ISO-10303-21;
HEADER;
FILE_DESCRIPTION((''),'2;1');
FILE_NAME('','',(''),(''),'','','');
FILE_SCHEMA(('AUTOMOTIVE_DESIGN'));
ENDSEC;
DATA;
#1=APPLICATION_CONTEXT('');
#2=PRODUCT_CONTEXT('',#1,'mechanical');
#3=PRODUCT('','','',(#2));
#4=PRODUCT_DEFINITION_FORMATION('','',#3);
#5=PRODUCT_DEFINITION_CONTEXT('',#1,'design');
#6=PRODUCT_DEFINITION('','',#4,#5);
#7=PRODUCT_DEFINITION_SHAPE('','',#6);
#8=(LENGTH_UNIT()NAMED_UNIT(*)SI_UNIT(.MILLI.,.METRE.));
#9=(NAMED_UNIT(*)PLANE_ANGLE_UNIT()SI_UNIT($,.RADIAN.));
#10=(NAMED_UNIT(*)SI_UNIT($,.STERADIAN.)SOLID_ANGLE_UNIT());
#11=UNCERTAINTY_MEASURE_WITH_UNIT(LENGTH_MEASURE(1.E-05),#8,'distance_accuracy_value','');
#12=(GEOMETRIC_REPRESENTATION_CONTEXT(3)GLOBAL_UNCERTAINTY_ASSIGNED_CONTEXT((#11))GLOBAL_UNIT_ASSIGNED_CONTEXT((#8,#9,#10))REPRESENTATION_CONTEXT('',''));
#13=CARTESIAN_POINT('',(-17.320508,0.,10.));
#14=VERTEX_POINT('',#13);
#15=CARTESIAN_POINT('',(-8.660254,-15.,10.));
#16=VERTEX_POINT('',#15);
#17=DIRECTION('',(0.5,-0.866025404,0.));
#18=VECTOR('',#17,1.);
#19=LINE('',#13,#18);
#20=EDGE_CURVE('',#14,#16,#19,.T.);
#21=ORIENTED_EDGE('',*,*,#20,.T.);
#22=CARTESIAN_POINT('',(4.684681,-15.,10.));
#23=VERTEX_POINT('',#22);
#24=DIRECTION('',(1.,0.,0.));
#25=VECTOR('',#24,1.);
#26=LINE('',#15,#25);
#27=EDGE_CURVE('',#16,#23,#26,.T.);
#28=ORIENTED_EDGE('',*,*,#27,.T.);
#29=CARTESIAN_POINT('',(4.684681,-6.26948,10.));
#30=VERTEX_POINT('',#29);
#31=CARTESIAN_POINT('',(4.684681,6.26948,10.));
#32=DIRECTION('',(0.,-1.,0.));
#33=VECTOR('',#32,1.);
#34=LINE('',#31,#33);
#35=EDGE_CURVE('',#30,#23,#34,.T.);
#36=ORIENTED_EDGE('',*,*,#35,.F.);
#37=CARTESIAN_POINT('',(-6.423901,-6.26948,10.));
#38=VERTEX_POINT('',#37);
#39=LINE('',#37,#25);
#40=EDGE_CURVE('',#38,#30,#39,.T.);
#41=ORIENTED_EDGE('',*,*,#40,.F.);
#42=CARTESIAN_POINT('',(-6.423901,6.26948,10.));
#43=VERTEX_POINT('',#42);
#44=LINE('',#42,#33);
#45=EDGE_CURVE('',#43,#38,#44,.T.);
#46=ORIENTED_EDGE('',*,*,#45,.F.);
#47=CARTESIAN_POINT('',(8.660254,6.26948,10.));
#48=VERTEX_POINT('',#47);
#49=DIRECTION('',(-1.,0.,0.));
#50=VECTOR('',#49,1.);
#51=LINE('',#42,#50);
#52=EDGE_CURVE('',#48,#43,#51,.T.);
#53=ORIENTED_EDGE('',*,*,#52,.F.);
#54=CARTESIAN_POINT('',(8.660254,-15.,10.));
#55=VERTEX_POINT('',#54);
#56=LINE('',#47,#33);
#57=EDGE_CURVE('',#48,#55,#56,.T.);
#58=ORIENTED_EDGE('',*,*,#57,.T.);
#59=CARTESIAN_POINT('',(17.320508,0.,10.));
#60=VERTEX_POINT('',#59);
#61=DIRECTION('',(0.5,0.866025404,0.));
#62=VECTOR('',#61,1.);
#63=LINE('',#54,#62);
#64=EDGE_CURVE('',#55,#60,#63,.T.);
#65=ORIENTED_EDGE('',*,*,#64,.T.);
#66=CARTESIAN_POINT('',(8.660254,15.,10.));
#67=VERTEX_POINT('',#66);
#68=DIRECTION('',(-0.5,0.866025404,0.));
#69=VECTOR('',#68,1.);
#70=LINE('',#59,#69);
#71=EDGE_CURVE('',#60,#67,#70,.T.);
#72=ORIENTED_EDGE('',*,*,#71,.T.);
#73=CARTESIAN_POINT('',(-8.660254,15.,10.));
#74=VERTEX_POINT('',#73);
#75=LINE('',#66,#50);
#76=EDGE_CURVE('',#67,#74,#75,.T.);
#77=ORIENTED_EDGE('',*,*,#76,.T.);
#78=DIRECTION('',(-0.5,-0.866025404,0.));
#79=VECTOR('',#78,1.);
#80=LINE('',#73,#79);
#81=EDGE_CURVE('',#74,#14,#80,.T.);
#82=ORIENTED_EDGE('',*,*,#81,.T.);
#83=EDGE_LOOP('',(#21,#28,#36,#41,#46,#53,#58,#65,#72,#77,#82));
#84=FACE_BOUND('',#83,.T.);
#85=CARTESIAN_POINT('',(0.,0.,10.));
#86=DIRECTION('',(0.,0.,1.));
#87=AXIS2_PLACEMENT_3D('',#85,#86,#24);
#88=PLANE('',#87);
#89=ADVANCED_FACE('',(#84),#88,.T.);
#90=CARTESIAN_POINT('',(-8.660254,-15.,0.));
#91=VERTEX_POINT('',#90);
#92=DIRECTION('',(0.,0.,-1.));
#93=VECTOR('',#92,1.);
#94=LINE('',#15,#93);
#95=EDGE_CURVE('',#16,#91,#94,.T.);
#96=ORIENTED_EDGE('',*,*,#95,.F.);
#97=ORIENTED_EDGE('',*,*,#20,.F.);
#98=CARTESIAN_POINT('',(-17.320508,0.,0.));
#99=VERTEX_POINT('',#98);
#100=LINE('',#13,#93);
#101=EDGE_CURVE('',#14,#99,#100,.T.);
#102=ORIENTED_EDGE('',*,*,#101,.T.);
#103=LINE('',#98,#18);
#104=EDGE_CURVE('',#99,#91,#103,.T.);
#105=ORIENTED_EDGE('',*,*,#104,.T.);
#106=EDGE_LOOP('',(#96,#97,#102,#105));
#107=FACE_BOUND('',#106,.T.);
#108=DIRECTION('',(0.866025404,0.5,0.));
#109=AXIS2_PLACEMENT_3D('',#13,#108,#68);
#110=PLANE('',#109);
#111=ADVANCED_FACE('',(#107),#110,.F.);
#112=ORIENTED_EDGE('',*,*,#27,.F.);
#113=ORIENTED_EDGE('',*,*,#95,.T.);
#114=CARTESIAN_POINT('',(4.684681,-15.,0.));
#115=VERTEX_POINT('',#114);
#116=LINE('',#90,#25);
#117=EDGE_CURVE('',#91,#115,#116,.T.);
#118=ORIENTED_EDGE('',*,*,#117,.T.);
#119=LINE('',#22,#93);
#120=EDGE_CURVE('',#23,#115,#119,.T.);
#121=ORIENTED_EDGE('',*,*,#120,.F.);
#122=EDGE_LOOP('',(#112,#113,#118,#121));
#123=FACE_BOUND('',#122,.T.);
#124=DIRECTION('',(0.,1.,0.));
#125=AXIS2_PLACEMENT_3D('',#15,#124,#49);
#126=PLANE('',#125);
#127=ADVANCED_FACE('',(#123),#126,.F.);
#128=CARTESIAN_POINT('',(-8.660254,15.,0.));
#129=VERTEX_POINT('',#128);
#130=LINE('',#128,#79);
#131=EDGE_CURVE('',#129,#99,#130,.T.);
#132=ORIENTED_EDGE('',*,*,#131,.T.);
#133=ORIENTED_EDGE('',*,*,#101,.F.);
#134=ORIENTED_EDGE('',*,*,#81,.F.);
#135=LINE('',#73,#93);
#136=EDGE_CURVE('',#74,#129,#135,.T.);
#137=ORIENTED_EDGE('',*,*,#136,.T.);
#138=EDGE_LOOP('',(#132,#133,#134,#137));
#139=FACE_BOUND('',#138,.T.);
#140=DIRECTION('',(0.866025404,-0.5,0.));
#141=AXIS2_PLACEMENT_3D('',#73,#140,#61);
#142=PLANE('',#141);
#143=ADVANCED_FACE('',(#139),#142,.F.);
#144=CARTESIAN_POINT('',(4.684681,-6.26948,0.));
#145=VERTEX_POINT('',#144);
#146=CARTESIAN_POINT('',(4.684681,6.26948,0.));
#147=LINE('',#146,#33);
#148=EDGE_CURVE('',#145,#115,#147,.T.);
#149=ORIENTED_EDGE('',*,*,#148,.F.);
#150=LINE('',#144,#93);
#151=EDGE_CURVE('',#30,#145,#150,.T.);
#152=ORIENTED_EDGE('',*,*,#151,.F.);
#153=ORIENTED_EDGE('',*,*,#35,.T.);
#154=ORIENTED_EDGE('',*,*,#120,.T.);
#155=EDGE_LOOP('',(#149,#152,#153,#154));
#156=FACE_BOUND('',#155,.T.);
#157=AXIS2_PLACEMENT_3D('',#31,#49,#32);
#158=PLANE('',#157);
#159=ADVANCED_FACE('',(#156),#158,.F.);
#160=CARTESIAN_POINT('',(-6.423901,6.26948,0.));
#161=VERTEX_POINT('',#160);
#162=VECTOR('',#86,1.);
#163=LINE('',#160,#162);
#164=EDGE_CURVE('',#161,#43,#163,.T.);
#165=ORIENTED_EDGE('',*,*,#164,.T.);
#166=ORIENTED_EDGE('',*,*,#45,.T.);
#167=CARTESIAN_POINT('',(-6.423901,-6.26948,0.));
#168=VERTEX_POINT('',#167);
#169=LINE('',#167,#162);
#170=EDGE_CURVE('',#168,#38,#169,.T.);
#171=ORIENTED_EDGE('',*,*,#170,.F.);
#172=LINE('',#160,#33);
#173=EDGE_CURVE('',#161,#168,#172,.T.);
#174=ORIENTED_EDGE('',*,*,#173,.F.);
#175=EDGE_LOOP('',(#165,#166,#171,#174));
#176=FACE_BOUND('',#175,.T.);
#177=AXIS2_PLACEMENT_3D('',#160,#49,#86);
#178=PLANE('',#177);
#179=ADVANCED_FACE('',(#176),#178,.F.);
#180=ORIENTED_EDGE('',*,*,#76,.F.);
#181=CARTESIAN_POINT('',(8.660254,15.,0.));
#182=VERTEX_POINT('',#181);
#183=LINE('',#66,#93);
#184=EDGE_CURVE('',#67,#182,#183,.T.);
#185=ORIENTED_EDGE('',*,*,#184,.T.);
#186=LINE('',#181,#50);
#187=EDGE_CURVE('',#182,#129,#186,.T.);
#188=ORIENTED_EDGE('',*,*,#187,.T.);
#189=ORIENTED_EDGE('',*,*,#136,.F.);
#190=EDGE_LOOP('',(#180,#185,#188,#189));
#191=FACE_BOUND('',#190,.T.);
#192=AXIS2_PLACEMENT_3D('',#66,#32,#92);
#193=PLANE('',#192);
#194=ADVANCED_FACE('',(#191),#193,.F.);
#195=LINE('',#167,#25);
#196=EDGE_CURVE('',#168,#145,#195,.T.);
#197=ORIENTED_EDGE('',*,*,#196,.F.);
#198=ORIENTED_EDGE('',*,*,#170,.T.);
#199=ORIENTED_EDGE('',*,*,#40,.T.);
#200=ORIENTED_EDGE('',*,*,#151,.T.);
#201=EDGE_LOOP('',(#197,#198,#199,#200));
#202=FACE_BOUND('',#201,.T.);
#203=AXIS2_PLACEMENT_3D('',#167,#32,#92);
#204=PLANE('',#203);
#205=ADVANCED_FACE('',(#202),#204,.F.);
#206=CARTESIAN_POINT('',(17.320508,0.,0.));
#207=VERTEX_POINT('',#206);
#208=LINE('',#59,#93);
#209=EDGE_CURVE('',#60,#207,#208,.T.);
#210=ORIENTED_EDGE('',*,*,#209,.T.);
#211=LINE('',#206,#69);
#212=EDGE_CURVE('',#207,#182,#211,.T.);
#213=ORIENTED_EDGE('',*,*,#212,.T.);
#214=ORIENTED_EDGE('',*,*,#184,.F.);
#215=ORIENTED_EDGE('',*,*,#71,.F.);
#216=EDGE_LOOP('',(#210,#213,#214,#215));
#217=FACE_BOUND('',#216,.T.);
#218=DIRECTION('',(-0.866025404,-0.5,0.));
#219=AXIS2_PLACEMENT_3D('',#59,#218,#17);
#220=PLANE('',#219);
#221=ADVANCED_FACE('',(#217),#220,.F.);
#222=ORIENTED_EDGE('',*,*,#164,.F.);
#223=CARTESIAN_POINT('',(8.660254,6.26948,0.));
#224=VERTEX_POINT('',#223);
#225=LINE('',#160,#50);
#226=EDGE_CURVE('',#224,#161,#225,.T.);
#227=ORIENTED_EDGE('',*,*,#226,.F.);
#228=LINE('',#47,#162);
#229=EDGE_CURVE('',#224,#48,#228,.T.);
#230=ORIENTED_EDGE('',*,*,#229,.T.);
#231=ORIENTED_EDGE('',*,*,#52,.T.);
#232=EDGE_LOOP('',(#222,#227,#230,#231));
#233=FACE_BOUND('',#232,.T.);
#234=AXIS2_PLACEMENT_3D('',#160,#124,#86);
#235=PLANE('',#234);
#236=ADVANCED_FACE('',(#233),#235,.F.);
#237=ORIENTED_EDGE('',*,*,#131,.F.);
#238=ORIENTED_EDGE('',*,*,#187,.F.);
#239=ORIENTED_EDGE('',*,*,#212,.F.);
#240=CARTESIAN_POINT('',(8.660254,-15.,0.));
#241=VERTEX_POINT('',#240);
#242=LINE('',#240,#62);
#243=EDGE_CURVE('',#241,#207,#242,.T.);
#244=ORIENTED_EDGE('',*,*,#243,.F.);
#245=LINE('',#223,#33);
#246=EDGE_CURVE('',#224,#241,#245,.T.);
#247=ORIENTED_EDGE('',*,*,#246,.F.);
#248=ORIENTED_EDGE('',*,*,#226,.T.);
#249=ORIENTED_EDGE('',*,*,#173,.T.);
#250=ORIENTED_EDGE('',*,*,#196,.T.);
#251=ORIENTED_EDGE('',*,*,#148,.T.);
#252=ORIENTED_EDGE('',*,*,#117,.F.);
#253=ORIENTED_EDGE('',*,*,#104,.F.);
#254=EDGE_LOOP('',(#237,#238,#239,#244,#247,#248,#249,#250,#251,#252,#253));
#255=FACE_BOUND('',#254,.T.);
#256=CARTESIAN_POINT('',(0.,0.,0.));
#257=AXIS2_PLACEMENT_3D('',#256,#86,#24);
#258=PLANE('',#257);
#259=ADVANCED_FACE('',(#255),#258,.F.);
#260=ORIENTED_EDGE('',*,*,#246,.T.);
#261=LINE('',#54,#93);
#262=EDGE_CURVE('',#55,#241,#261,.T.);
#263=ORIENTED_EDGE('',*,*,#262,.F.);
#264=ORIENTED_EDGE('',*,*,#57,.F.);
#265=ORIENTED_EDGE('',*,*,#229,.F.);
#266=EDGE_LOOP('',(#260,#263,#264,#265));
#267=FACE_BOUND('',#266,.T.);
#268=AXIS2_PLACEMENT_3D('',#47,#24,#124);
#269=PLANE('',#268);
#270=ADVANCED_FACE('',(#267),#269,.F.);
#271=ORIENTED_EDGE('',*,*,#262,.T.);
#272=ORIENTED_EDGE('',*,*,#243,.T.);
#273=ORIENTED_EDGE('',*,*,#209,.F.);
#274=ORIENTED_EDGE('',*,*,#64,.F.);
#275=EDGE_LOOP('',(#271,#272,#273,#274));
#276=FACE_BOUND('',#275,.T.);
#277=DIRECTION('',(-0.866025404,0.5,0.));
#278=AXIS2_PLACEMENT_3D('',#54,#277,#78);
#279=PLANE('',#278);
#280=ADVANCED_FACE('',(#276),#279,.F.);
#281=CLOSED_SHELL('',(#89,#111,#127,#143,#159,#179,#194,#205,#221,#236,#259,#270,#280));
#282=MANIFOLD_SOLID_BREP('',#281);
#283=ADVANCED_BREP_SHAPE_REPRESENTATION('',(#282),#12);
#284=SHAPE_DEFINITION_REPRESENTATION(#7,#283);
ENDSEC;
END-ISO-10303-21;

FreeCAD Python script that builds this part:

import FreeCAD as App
import Part
import Sketcher
Q = App.Units.Quantity

doc = App.newDocument("Part")
body = doc.addObject("PartDesign::Body", "Body")

# Sketch on XY plane
sketch1 = body.newObject("Sketcher::SketchObject", "Sketch")
sketch1.AttachmentSupport = (doc.getObject("XY_Plane"), [""])
sketch1.MapMode = "FlatFace"
sketch1.addGeometry(Part.LineSegment(App.Vector(17, 0, 0), App.Vector(9, 15, 0)), False)
sketch1.addGeometry(Part.LineSegment(App.Vector(9, 15, 0), App.Vector(-9, 15, 0)), False)
sketch1.addGeometry(Part.LineSegment(App.Vector(-9, 15, 0), App.Vector(-17, 0, 0)), False)
sketch1.addGeometry(Part.LineSegment(App.Vector(-17, 0, 0), App.Vector(-9, -15, 0)), False)
sketch1.addGeometry(Part.LineSegment(App.Vector(-9, -15, 0), App.Vector(9, -15, 0)), False)
sketch1.addGeometry(Part.LineSegment(App.Vector(9, -15, 0), App.Vector(17, 0, 0)), False)
sketch1.addConstraint(Sketcher.Constraint("Coincident", 0, 2, 1, 1))
sketch1.addConstraint(Sketcher.Constraint("Coincident", 1, 2, 2, 1))
sketch1.addConstraint(Sketcher.Constraint("Coincident", 2, 2, 3, 1))
sketch1.addConstraint(Sketcher.Constraint("Coincident", 3, 2, 4, 1))
sketch1.addConstraint(Sketcher.Constraint("Coincident", 4, 2, 5, 1))
sketch1.addConstraint(Sketcher.Constraint("Coincident", 5, 2, 0, 1))
sketch1.addConstraint(Sketcher.Constraint("Horizontal", 1))
sketch1.addConstraint(Sketcher.Constraint("Horizontal", 4))
sketch1.addConstraint(Sketcher.Constraint("Symmetric", 0, 2, 3, 2, -1, 1))
sketch1.addConstraint(Sketcher.Constraint("Symmetric", 2, 2, 5, 2, -1, 1))
sketch1.addConstraint(Sketcher.Constraint("PointOnObject", 2, 2, -1))
sketch1.addConstraint(Sketcher.Constraint("Parallel", 2, 5))
sketch1.addConstraint(Sketcher.Constraint("Vertical", 1, 2, 3, 2))
sketch1.addConstraint(Sketcher.Constraint("Angle", 0, Q("120 deg")))
sketch1.addConstraint(Sketcher.Constraint("DistanceY", -1, 1, 0, 2, Q("15 mm")))
sketch1.addConstraint(Sketcher.Constraint("DistanceX", 1, 2, 1, 1, Q("17.320508 mm")))
pad1 = body.newObject("PartDesign::Pad", "Pad")
pad1.Profile = sketch1
pad1.Length = 10

# Sketch on XY plane
sketch2 = body.newObject("Sketcher::SketchObject", "Sketch001")
sketch2.AttachmentSupport = (doc.getObject("XY_Plane"), [""])
sketch2.MapMode = "FlatFace"
sketch2.AttachmentOffset = App.Placement(App.Vector(0, 0, 10), App.Rotation())
sketch2.addGeometry(Part.LineSegment(App.Vector(-6, 6, 0), App.Vector(-6, -6, 0)), False)
sketch2.addGeometry(Part.LineSegment(App.Vector(-6, -6, 0), App.Vector(6, -6, 0)), False)
sketch2.addGeometry(Part.LineSegment(App.Vector(6, -6, 0), App.Vector(6, 6, 0)), False)
sketch2.addGeometry(Part.LineSegment(App.Vector(6, 6, 0), App.Vector(-6, 6, 0)), False)
sketch2.addConstraint(Sketcher.Constraint("Coincident", 0, 2, 1, 1))
sketch2.addConstraint(Sketcher.Constraint("Coincident", 1, 2, 2, 1))
sketch2.addConstraint(Sketcher.Constraint("Coincident", 2, 2, 3, 1))
sketch2.addConstraint(Sketcher.Constraint("Coincident", 3, 2, 0, 1))
sketch2.addConstraint(Sketcher.Constraint("Vertical", 0))
sketch2.addConstraint(Sketcher.Constraint("Horizontal", 1))
sketch2.addConstraint(Sketcher.Constraint("Vertical", 2))
sketch2.addConstraint(Sketcher.Constraint("Horizontal", 3))
sketch2.addConstraint(Sketcher.Constraint("Symmetric", 0, 2, 2, 2, -1, 1))
sketch2.addConstraint(Sketcher.Constraint("DistanceX", 1, 1, 1, 2, Q("12.847801 mm")))
sketch2.addConstraint(Sketcher.Constraint("DistanceY", 0, 2, 0, 1, Q("12.53896 mm")))
pocket1 = body.newObject("PartDesign::Pocket", "Pocket")
pocket1.Profile = sketch2
pocket1.Type = "ThroughAll"

# Sketch on XZ plane
sketch3 = body.newObject("Sketcher::SketchObject", "Sketch002")
sketch3.AttachmentSupport = (doc.getObject("XZ_Plane"), [""])
sketch3.MapMode = "FlatFace"
sketch3.AttachmentOffset = App.Placement(App.Vector(0, 0, -6.26948), App.Rotation())
sketch3.addGeometry(Part.LineSegment(App.Vector(4.7, 10, 0), App.Vector(4.7, 0, 0)), False)
sketch3.addGeometry(Part.LineSegment(App.Vector(4.7, 0, 0), App.Vector(8.7, 0, 0)), False)
sketch3.addGeometry(Part.LineSegment(App.Vector(8.7, 0, 0), App.Vector(8.7, 10, 0)), False)
sketch3.addGeometry(Part.LineSegment(App.Vector(8.7, 10, 0), App.Vector(4.7, 10, 0)), False)
sketch3.addConstraint(Sketcher.Constraint("Coincident", 0, 2, 1, 1))
sketch3.addConstraint(Sketcher.Constraint("Coincident", 1, 2, 2, 1))
sketch3.addConstraint(Sketcher.Constraint("Coincident", 2, 2, 3, 1))
sketch3.addConstraint(Sketcher.Constraint("Coincident", 3, 2, 0, 1))
sketch3.addConstraint(Sketcher.Constraint("Vertical", 0))
sketch3.addConstraint(Sketcher.Constraint("Horizontal", 1))
sketch3.addConstraint(Sketcher.Constraint("Vertical", 2))
sketch3.addConstraint(Sketcher.Constraint("Horizontal", 3))
sketch3.addConstraint(Sketcher.Constraint("PointOnObject", 0, 2, -1))
sketch3.addConstraint(Sketcher.Constraint("DistanceY", 0, 2, 0, 1, Q("10 mm")))
sketch3.addConstraint(Sketcher.Constraint("DistanceX", 1, 1, 1, 2, Q("3.975573 mm")))
sketch3.addConstraint(Sketcher.Constraint("DistanceX", -1, 1, 0, 2, Q("4.684681 mm")))
pocket2 = body.newObject("PartDesign::Pocket", "Pocket001")
pocket2.Profile = sketch3
pocket2.Length = 21.26948
pocket2.Reversed = True

doc.recompute()
